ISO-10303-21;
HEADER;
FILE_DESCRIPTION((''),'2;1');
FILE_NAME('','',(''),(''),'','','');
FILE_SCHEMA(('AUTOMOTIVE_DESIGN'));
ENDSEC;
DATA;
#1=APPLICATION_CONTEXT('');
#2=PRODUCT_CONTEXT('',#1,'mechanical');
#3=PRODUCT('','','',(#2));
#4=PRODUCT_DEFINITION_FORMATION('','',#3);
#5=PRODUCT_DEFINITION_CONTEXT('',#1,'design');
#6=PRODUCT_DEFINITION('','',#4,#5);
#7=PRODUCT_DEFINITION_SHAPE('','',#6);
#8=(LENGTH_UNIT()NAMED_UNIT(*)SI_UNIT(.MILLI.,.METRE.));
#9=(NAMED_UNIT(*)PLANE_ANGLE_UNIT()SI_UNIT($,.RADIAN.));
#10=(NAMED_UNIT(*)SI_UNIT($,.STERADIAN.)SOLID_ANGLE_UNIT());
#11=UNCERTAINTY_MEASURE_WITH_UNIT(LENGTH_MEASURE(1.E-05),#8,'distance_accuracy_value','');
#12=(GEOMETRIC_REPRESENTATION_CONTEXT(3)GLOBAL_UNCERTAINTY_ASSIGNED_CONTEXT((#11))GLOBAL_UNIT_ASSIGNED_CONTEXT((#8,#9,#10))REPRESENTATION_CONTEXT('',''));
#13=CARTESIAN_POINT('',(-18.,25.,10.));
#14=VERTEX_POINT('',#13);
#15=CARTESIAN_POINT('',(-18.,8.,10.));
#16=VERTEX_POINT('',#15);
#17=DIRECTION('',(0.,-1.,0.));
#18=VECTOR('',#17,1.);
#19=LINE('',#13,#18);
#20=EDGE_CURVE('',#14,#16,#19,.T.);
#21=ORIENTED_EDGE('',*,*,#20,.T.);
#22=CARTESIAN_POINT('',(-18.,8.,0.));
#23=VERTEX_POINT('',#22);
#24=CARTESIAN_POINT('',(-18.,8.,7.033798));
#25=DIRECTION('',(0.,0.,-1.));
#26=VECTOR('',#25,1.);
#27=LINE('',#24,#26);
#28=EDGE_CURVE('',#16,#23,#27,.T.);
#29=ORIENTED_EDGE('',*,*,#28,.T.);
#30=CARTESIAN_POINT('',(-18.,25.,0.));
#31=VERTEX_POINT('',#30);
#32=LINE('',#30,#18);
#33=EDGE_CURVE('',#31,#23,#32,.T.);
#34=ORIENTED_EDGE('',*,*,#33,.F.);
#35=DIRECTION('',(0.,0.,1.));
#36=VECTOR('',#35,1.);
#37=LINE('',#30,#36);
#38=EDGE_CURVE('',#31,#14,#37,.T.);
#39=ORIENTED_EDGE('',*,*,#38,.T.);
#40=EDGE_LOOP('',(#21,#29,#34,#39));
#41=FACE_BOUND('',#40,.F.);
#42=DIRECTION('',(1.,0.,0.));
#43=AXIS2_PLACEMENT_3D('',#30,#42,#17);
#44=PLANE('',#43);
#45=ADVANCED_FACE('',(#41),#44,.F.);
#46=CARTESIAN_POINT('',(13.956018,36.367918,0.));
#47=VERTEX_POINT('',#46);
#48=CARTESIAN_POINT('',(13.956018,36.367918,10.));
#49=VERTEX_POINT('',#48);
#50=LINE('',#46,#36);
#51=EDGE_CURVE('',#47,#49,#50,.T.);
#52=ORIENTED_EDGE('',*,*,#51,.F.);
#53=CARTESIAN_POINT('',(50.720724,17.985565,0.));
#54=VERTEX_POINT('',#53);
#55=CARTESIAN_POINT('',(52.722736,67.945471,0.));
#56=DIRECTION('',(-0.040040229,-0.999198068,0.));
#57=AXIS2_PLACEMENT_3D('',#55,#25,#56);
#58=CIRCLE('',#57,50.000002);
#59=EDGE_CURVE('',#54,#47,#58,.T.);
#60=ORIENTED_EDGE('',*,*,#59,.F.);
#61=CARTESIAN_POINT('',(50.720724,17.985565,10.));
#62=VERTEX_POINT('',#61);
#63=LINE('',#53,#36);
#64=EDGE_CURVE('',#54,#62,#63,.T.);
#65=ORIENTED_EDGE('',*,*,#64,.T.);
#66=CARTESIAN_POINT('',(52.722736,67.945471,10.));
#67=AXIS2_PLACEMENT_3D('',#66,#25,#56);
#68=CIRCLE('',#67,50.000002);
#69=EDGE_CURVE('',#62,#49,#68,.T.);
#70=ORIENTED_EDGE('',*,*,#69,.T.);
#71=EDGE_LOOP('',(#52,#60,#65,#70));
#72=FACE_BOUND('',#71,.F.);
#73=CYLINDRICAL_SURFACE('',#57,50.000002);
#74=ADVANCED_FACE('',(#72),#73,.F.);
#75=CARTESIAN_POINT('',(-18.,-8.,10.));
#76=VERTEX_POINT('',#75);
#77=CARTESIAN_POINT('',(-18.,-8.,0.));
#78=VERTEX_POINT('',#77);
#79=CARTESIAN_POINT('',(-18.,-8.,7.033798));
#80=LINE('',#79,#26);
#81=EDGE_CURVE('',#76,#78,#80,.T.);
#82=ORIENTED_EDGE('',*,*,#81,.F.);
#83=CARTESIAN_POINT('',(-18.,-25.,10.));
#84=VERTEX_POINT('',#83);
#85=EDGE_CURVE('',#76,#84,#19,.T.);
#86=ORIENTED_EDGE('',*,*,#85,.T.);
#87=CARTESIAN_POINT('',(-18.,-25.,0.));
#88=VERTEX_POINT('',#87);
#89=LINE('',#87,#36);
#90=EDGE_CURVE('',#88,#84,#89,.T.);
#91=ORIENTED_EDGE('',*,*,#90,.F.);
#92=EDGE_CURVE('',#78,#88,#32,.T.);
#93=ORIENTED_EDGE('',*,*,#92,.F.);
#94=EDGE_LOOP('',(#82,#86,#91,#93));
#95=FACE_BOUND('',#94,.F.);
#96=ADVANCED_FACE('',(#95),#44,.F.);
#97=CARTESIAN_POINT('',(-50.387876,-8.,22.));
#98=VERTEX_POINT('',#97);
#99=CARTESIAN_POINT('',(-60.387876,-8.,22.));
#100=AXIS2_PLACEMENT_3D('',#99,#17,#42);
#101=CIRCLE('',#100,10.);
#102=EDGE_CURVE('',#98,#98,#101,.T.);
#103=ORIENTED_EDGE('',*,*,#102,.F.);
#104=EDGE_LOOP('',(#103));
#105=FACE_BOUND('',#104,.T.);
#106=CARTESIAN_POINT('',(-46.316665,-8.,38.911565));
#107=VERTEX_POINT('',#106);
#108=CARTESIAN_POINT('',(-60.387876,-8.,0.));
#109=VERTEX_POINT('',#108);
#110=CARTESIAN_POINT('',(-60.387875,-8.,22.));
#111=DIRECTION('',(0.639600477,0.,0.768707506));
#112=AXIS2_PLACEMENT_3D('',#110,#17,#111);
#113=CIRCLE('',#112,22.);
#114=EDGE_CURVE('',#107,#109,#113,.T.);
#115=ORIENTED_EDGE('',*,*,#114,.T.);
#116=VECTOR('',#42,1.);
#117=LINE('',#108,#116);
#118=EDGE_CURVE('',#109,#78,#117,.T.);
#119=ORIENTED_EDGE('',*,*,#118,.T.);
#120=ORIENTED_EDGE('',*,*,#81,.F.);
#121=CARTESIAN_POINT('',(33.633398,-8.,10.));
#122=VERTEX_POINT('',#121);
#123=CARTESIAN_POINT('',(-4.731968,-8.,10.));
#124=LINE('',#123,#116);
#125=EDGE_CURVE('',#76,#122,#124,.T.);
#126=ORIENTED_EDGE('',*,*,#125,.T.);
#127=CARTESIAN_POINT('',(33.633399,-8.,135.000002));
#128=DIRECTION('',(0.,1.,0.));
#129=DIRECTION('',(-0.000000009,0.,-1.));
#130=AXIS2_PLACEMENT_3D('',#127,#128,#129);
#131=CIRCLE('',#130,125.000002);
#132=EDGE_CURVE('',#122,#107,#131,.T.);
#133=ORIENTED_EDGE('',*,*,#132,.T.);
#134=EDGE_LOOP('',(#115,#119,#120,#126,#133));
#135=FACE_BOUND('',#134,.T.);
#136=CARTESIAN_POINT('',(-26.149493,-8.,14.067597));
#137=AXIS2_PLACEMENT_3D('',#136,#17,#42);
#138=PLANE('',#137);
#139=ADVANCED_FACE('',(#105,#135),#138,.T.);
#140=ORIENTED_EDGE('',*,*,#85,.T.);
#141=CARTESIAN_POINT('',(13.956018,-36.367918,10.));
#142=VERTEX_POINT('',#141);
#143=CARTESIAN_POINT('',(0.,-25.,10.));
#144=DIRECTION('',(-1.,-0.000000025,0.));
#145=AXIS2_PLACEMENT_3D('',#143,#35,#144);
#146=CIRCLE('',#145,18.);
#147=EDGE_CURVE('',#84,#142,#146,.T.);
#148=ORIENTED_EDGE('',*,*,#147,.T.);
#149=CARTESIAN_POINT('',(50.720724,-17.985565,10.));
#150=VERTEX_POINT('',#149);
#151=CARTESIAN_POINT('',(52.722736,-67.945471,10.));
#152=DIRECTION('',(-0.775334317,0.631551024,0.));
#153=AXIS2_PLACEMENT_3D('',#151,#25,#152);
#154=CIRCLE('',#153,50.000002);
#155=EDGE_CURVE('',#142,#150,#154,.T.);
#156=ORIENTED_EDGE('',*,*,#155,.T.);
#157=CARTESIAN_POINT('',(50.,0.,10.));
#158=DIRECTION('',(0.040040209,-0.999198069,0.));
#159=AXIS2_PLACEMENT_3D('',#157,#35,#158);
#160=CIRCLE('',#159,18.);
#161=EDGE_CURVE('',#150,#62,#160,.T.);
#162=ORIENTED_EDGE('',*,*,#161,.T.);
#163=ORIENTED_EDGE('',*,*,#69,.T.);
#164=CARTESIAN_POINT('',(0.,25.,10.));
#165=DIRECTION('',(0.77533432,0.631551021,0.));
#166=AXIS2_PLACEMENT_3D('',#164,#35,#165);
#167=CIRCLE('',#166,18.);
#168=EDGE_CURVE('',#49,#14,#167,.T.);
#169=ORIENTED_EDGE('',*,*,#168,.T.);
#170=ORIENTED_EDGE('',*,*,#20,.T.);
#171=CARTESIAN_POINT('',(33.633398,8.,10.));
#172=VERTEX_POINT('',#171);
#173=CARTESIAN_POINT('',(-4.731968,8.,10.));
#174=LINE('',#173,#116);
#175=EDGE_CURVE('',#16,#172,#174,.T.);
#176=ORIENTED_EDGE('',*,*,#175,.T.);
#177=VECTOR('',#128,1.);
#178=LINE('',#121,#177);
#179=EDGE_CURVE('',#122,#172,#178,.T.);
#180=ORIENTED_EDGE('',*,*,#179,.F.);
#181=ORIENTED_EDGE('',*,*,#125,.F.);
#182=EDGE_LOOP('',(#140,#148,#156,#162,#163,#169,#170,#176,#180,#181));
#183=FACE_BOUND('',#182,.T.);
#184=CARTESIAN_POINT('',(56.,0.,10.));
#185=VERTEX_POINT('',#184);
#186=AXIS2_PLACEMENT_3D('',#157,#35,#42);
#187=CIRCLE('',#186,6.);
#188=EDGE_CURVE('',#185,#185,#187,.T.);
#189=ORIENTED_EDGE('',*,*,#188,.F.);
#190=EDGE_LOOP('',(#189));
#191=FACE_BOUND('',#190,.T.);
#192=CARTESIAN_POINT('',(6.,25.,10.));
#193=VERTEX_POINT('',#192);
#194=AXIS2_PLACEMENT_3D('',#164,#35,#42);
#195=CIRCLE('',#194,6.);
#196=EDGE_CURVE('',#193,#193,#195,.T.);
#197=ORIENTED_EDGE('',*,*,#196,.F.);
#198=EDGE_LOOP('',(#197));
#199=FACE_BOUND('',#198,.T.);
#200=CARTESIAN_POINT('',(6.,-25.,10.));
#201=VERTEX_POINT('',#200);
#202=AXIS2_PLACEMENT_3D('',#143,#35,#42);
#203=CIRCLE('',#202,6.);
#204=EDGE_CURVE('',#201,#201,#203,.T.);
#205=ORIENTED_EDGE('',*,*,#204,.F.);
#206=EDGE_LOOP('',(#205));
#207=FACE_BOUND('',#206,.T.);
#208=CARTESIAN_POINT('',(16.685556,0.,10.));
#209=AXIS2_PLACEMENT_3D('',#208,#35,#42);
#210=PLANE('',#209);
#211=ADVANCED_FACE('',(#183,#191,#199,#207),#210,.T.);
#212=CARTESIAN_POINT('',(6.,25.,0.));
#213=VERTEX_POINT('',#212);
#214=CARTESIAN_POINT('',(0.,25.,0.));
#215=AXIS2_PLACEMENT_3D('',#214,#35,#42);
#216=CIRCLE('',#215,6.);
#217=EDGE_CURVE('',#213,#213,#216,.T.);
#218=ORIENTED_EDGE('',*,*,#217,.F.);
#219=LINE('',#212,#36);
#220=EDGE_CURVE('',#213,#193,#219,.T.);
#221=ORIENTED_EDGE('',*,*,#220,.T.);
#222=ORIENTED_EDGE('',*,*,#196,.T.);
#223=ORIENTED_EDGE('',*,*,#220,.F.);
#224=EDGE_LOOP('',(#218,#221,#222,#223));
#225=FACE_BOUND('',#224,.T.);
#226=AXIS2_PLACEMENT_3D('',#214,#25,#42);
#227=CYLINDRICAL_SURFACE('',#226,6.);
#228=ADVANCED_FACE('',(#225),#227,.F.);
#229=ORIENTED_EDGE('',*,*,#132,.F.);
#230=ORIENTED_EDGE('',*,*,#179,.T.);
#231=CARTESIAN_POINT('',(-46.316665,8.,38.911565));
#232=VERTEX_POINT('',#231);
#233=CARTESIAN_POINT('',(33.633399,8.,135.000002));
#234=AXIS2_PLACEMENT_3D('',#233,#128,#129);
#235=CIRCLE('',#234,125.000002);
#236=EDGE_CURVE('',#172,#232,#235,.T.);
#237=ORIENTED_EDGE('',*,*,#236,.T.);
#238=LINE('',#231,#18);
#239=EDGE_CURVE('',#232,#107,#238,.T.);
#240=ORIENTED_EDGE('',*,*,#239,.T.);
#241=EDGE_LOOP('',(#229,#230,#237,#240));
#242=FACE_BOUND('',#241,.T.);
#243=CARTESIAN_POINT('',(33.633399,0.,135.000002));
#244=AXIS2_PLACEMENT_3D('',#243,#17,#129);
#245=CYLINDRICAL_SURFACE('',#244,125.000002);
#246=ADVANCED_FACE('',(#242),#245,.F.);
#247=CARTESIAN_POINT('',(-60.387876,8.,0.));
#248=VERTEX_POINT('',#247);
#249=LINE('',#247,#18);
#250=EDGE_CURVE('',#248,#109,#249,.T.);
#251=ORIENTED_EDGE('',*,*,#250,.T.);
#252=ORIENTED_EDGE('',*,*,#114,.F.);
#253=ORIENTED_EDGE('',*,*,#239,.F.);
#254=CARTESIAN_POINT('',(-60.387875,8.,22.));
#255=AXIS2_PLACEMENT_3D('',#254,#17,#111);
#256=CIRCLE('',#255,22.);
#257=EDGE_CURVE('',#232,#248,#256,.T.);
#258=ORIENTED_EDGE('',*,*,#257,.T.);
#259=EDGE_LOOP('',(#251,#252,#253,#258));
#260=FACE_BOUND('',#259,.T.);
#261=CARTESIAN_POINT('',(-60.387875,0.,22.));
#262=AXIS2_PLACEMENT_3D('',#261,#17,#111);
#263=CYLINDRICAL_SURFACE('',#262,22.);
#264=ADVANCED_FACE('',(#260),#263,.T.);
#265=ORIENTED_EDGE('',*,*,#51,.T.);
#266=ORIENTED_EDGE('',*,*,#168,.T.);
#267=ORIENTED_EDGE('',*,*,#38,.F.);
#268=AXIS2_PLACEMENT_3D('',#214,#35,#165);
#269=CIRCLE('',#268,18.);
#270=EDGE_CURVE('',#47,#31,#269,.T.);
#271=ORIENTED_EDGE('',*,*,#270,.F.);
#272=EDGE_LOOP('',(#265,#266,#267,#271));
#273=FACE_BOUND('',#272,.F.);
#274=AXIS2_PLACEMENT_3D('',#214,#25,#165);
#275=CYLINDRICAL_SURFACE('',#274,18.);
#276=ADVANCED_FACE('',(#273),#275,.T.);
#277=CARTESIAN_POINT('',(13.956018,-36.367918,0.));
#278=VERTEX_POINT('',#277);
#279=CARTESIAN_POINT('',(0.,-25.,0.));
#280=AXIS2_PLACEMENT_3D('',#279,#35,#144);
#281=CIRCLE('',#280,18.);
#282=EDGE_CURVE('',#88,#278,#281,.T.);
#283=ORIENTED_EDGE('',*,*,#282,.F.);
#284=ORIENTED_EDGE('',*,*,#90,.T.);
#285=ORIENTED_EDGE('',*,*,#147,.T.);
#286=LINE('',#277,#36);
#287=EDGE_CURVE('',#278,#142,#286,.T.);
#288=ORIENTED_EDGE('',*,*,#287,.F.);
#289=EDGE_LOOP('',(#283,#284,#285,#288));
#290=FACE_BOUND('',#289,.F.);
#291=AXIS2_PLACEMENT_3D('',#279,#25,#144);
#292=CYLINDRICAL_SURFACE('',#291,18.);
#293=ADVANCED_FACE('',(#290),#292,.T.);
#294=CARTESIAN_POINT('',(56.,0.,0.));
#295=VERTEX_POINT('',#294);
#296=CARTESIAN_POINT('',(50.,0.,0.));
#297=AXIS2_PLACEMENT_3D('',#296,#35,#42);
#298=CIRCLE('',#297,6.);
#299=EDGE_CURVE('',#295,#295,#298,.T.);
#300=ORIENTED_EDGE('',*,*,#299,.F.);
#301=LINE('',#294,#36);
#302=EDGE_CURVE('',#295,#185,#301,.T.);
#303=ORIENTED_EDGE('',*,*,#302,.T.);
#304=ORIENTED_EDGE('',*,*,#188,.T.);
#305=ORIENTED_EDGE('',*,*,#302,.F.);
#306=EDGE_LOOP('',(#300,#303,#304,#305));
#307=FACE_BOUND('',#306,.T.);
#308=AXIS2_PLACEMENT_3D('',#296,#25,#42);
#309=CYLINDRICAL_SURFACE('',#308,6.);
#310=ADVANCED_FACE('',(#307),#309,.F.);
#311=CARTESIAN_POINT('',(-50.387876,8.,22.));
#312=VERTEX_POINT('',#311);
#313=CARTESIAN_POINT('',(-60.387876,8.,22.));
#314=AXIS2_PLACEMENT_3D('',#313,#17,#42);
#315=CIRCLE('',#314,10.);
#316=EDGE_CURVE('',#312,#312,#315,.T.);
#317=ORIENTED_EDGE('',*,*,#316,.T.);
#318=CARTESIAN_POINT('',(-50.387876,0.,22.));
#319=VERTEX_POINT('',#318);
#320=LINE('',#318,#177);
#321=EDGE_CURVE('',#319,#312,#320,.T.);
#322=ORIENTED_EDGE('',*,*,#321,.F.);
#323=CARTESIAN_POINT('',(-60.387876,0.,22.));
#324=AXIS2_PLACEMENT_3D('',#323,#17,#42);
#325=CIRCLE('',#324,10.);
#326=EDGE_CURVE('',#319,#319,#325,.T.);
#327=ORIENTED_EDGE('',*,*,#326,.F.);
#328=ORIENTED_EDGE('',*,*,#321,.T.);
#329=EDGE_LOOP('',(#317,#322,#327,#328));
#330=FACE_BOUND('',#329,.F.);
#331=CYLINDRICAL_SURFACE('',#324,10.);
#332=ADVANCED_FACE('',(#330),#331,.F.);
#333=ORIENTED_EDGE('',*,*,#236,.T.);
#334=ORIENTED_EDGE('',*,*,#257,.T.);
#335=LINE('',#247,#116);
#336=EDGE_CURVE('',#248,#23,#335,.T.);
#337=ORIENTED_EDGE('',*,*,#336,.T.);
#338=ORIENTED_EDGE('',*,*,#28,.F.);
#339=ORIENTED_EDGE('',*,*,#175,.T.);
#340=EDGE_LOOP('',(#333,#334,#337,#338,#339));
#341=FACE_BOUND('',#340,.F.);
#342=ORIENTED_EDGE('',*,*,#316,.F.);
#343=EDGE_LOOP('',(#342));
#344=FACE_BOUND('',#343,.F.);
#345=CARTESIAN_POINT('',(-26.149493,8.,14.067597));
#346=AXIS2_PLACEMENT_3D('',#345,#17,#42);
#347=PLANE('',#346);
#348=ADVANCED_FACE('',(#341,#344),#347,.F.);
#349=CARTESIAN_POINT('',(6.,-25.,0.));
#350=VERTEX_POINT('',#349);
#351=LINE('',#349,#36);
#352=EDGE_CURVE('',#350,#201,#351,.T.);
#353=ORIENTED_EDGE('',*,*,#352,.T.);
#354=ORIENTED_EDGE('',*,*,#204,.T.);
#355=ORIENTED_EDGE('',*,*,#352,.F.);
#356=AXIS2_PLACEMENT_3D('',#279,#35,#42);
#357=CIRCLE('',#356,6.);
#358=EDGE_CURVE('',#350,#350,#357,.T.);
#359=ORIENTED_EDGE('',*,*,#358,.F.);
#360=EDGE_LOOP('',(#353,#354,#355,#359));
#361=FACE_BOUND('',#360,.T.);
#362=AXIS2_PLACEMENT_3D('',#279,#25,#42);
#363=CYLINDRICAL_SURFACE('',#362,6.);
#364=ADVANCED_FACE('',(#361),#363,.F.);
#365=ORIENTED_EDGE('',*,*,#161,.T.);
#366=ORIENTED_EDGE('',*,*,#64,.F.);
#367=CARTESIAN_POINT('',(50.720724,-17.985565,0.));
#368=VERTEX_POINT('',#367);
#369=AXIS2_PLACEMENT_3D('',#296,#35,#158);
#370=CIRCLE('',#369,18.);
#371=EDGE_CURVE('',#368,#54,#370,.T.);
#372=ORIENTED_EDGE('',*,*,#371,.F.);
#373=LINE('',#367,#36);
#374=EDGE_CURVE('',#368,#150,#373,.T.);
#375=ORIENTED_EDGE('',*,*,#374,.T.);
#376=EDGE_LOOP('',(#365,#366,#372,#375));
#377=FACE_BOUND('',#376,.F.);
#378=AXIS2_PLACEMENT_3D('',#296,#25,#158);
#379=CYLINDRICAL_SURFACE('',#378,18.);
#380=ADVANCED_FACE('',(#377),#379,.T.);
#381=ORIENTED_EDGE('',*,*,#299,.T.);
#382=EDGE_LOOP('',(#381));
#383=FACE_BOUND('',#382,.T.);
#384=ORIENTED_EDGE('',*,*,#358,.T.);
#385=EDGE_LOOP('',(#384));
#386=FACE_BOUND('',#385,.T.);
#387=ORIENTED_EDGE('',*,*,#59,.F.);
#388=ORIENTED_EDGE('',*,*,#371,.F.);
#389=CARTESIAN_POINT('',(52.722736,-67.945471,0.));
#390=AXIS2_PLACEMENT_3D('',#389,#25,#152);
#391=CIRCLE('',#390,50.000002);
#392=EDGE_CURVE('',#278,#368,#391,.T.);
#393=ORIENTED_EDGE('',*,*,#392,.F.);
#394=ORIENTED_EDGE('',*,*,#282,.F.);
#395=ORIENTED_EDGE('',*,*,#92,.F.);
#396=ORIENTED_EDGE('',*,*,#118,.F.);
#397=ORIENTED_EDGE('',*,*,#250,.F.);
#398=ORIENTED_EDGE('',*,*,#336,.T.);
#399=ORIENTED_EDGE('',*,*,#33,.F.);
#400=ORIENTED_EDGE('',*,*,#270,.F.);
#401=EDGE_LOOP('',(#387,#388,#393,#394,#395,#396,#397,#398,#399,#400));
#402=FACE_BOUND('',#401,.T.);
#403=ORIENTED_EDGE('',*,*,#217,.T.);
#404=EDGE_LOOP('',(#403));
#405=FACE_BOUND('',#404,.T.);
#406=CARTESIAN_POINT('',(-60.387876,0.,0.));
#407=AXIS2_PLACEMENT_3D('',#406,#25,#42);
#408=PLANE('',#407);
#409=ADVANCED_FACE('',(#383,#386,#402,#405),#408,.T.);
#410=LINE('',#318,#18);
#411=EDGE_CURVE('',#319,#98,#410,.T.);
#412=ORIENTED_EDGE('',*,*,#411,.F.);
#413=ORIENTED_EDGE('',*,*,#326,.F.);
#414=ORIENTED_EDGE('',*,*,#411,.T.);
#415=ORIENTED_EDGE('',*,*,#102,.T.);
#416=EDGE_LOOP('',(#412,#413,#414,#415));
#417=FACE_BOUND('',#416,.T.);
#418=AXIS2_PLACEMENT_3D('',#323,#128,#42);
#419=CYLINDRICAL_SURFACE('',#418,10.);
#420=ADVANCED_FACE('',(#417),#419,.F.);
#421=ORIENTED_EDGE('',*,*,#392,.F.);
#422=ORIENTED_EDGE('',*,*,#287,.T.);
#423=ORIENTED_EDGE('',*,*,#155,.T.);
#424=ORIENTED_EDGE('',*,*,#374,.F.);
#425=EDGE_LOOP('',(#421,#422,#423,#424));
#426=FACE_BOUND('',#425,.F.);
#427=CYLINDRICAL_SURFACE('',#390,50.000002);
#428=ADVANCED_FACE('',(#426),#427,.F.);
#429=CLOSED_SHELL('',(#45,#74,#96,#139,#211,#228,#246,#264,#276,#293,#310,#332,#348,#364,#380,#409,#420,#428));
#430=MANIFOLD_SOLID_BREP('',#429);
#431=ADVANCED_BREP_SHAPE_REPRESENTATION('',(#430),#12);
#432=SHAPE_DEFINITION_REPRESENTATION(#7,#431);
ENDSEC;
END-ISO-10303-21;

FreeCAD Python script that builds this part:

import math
import FreeCAD as App
import Part
import Sketcher

V = App.Vector
Q = App.Units.Quantity

doc = App.newDocument("Part")
body = doc.addObject("PartDesign::Body", "Body")

sketch1 = body.newObject("Sketcher::SketchObject", "Sketch")
sketch1.AttachmentSupport = (doc.getObject("XY_Plane"), [""])
sketch1.MapMode = "FlatFace"
sketch1.addGeometry([
    Part.ArcOfCircle(Part.Circle(V(53, 68, 0), V(0, 0, 1), 50), math.radians(-141), math.radians(-92)),
    Part.ArcOfCircle(Part.Circle(V(0, 25, 0), V(0, 0, 1), 18), math.radians(39), math.radians(180)),
    Part.LineSegment(V(-18, 25, 0), V(-18, -25, 0)),
    Part.ArcOfCircle(Part.Circle(V(0, -25, 0), V(0, 0, 1), 18), math.radians(-180), math.radians(-39)),
    Part.ArcOfCircle(Part.Circle(V(53, -68, 0), V(0, 0, 1), 50), math.radians(92), math.radians(141)),
    Part.ArcOfCircle(Part.Circle(V(50, 0, 0), V(0, 0, 1), 18), math.radians(-88), math.radians(88)),
    Part.Circle(V(0, -25, 0), V(0, 0, 1), 6),
    Part.Circle(V(0, 25, 0), V(0, 0, 1), 6),
    Part.Circle(V(50, 0, 0), V(0, 0, 1), 6),
], False)
sketch1.addConstraint([
    Sketcher.Constraint("Tangent", 0, 1, 1, 1),
    Sketcher.Constraint("Tangent", 1, 2, 2, 1),
    Sketcher.Constraint("Tangent", 2, 2, 3, 1),
    Sketcher.Constraint("Tangent", 3, 2, 4, 2),
    Sketcher.Constraint("Tangent", 4, 1, 5, 1),
    Sketcher.Constraint("Tangent", 5, 2, 0, 2),
    Sketcher.Constraint("Vertical", 2),
    Sketcher.Constraint("Coincident", 6, 3, 3, 3),
    Sketcher.Constraint("Coincident", 7, 3, 1, 3),
    Sketcher.Constraint("Coincident", 8, 3, 5, 3),
    Sketcher.Constraint("Equal", 1, 3),
    Sketcher.Constraint("Equal", 0, 4),
    Sketcher.Constraint("Equal", 3, 5),
    Sketcher.Constraint("Equal", 6, 7),
    Sketcher.Constraint("Equal", 7, 8),
    Sketcher.Constraint("Symmetric", 1, 3, 3, 3, -1, 1),
    Sketcher.Constraint("PointOnObject", 5, 3, -1),
    Sketcher.Constraint("Diameter", 6, Q("12 mm")),
    Sketcher.Constraint("Radius", 1, Q("18 mm")),
    Sketcher.Constraint("DistanceY", 2, 2, 2, 1, Q("50 mm")),
    Sketcher.Constraint("DistanceX", -1, 1, 5, 3, Q("50 mm")),
    Sketcher.Constraint("Radius", 0, Q("50.000002 mm")),
])
pad1 = body.newObject("PartDesign::Pad", "Pad")
pad1.Profile = sketch1
pad1.Length = 10

sketch2 = body.newObject("Sketcher::SketchObject", "Sketch001")
sketch2.AttachmentSupport = (doc.getObject("XZ_Plane"), [""])
sketch2.MapMode = "FlatFace"
sketch2.addGeometry([
    Part.ArcOfCircle(Part.Circle(V(34, 135, 0), V(0, 0, 1), 125), math.radians(-130), math.radians(-90)),
    Part.ArcOfCircle(Part.Circle(V(-60, 22, 0), V(0, 0, 1), 22), math.radians(50), math.radians(270)),
    Part.LineSegment(V(-60, 0, 0), V(34, 0, 0)),
    Part.LineSegment(V(34, 0, 0), V(34, 10, 0)),
    Part.Circle(V(-60, 22, 0), V(0, 0, 1), 10),
], False)
sketch2.addConstraint([
    Sketcher.Constraint("Tangent", 0, 1, 1, 1),
    Sketcher.Constraint("Tangent", 1, 2, 2, 1),
    Sketcher.Constraint("Coincident", 2, 2, 3, 1),
    Sketcher.Constraint("Coincident", 3, 2, 0, 2),
    Sketcher.Constraint("Horizontal", 2),
    Sketcher.Constraint("Vertical", 3),
    Sketcher.Constraint("Coincident", 4, 3, 1, 3),
    Sketcher.Constraint("PointOnObject", 1, 2, -1),
    Sketcher.Constraint("Vertical", 0, 3, 2, 2),
    Sketcher.Constraint("Diameter", 4, Q("20 mm")),
    Sketcher.Constraint("Radius", 0, Q("125.000002 mm")),
    Sketcher.Constraint("Radius", 1, Q("22 mm")),
    Sketcher.Constraint("DistanceY", 3, 1, 3, 2, Q("10 mm")),
    Sketcher.Constraint("DistanceX", -1, 1, 0, 3, Q("33.633399 mm")),
])
pad2 = body.newObject("PartDesign::Pad", "Pad001")
pad2.Profile = sketch2
pad2.Type = "TwoLengths"
pad2.Length = 8
pad2.Length2 = 8

doc.recompute()
